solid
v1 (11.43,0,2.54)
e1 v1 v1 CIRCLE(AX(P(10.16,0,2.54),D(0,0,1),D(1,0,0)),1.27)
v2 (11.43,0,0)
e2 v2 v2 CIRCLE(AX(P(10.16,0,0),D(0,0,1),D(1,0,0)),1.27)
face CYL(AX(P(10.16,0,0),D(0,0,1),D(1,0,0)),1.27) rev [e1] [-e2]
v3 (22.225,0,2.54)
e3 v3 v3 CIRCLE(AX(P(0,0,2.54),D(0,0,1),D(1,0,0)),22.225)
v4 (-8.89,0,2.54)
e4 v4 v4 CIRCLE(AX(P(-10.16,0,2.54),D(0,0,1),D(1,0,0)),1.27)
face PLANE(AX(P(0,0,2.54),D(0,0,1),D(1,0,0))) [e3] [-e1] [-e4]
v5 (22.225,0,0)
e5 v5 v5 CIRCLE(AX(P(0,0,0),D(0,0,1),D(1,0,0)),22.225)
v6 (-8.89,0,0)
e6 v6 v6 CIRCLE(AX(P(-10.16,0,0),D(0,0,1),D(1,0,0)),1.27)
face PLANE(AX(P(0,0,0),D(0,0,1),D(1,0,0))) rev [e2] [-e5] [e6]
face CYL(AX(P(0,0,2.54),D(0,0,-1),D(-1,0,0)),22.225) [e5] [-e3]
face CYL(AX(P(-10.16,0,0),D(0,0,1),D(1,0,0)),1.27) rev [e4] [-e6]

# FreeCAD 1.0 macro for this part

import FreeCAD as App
import Part
import Sketcher

V = App.Vector
Q = App.Units.Quantity

doc = App.newDocument("Part")
body = doc.addObject("PartDesign::Body", "Body")

# Sketch on XY plane
sketch1 = doc.addObject("Sketcher::SketchObject", "Sketch")
body.addObject(sketch1)
sketch1.AttachmentSupport = (doc.XY_Plane, [""])
sketch1.MapMode = "FlatFace"
sketch1.addGeometry(Part.Circle(V(0, 0, 0), V(0, 0, 1), 22), False)
sketch1.addConstraint([
    Sketcher.Constraint("Coincident", 0, 3, -1, 1),
    Sketcher.Constraint("Diameter", 0, Q("1.75 in")),
])
pad1 = doc.addObject("PartDesign::Pad", "Pad")
body.addObject(pad1)
pad1.Profile = sketch1
pad1.Length = Q("0.1 in")

# Sketch on XY plane
sketch2 = doc.addObject("Sketcher::SketchObject", "Sketch001")
body.addObject(sketch2)
sketch2.AttachmentSupport = (doc.XY_Plane, [""])
sketch2.MapMode = "FlatFace"
sketch2.AttachmentOffset = App.Placement(V(0, 0, 0.1 * 25.4), App.Rotation())
sketch2.addGeometry([
    Part.Circle(V(-10.2, 0, 0), V(0, 0, 1), 1.3),
    Part.Circle(V(10.2, 0, 0), V(0, 0, 1), 1.3),
], False)
sketch2.addConstraint([
    Sketcher.Constraint("Equal", 0, 1),
    Sketcher.Constraint("Symmetric", 0, 3, 1, 3, -1, 1),
    Sketcher.Constraint("PointOnObject", 0, 3, -1),
    Sketcher.Constraint("Diameter", 0, Q("0.1 in")),
    Sketcher.Constraint("DistanceX", 0, 3, -1, 1, Q("0.4 in")),
])
pocket1 = doc.addObject("PartDesign::Pocket", "Pocket")
body.addObject(pocket1)
pocket1.Profile = sketch2
pocket1.Type = "ThroughAll"

doc.recompute()
